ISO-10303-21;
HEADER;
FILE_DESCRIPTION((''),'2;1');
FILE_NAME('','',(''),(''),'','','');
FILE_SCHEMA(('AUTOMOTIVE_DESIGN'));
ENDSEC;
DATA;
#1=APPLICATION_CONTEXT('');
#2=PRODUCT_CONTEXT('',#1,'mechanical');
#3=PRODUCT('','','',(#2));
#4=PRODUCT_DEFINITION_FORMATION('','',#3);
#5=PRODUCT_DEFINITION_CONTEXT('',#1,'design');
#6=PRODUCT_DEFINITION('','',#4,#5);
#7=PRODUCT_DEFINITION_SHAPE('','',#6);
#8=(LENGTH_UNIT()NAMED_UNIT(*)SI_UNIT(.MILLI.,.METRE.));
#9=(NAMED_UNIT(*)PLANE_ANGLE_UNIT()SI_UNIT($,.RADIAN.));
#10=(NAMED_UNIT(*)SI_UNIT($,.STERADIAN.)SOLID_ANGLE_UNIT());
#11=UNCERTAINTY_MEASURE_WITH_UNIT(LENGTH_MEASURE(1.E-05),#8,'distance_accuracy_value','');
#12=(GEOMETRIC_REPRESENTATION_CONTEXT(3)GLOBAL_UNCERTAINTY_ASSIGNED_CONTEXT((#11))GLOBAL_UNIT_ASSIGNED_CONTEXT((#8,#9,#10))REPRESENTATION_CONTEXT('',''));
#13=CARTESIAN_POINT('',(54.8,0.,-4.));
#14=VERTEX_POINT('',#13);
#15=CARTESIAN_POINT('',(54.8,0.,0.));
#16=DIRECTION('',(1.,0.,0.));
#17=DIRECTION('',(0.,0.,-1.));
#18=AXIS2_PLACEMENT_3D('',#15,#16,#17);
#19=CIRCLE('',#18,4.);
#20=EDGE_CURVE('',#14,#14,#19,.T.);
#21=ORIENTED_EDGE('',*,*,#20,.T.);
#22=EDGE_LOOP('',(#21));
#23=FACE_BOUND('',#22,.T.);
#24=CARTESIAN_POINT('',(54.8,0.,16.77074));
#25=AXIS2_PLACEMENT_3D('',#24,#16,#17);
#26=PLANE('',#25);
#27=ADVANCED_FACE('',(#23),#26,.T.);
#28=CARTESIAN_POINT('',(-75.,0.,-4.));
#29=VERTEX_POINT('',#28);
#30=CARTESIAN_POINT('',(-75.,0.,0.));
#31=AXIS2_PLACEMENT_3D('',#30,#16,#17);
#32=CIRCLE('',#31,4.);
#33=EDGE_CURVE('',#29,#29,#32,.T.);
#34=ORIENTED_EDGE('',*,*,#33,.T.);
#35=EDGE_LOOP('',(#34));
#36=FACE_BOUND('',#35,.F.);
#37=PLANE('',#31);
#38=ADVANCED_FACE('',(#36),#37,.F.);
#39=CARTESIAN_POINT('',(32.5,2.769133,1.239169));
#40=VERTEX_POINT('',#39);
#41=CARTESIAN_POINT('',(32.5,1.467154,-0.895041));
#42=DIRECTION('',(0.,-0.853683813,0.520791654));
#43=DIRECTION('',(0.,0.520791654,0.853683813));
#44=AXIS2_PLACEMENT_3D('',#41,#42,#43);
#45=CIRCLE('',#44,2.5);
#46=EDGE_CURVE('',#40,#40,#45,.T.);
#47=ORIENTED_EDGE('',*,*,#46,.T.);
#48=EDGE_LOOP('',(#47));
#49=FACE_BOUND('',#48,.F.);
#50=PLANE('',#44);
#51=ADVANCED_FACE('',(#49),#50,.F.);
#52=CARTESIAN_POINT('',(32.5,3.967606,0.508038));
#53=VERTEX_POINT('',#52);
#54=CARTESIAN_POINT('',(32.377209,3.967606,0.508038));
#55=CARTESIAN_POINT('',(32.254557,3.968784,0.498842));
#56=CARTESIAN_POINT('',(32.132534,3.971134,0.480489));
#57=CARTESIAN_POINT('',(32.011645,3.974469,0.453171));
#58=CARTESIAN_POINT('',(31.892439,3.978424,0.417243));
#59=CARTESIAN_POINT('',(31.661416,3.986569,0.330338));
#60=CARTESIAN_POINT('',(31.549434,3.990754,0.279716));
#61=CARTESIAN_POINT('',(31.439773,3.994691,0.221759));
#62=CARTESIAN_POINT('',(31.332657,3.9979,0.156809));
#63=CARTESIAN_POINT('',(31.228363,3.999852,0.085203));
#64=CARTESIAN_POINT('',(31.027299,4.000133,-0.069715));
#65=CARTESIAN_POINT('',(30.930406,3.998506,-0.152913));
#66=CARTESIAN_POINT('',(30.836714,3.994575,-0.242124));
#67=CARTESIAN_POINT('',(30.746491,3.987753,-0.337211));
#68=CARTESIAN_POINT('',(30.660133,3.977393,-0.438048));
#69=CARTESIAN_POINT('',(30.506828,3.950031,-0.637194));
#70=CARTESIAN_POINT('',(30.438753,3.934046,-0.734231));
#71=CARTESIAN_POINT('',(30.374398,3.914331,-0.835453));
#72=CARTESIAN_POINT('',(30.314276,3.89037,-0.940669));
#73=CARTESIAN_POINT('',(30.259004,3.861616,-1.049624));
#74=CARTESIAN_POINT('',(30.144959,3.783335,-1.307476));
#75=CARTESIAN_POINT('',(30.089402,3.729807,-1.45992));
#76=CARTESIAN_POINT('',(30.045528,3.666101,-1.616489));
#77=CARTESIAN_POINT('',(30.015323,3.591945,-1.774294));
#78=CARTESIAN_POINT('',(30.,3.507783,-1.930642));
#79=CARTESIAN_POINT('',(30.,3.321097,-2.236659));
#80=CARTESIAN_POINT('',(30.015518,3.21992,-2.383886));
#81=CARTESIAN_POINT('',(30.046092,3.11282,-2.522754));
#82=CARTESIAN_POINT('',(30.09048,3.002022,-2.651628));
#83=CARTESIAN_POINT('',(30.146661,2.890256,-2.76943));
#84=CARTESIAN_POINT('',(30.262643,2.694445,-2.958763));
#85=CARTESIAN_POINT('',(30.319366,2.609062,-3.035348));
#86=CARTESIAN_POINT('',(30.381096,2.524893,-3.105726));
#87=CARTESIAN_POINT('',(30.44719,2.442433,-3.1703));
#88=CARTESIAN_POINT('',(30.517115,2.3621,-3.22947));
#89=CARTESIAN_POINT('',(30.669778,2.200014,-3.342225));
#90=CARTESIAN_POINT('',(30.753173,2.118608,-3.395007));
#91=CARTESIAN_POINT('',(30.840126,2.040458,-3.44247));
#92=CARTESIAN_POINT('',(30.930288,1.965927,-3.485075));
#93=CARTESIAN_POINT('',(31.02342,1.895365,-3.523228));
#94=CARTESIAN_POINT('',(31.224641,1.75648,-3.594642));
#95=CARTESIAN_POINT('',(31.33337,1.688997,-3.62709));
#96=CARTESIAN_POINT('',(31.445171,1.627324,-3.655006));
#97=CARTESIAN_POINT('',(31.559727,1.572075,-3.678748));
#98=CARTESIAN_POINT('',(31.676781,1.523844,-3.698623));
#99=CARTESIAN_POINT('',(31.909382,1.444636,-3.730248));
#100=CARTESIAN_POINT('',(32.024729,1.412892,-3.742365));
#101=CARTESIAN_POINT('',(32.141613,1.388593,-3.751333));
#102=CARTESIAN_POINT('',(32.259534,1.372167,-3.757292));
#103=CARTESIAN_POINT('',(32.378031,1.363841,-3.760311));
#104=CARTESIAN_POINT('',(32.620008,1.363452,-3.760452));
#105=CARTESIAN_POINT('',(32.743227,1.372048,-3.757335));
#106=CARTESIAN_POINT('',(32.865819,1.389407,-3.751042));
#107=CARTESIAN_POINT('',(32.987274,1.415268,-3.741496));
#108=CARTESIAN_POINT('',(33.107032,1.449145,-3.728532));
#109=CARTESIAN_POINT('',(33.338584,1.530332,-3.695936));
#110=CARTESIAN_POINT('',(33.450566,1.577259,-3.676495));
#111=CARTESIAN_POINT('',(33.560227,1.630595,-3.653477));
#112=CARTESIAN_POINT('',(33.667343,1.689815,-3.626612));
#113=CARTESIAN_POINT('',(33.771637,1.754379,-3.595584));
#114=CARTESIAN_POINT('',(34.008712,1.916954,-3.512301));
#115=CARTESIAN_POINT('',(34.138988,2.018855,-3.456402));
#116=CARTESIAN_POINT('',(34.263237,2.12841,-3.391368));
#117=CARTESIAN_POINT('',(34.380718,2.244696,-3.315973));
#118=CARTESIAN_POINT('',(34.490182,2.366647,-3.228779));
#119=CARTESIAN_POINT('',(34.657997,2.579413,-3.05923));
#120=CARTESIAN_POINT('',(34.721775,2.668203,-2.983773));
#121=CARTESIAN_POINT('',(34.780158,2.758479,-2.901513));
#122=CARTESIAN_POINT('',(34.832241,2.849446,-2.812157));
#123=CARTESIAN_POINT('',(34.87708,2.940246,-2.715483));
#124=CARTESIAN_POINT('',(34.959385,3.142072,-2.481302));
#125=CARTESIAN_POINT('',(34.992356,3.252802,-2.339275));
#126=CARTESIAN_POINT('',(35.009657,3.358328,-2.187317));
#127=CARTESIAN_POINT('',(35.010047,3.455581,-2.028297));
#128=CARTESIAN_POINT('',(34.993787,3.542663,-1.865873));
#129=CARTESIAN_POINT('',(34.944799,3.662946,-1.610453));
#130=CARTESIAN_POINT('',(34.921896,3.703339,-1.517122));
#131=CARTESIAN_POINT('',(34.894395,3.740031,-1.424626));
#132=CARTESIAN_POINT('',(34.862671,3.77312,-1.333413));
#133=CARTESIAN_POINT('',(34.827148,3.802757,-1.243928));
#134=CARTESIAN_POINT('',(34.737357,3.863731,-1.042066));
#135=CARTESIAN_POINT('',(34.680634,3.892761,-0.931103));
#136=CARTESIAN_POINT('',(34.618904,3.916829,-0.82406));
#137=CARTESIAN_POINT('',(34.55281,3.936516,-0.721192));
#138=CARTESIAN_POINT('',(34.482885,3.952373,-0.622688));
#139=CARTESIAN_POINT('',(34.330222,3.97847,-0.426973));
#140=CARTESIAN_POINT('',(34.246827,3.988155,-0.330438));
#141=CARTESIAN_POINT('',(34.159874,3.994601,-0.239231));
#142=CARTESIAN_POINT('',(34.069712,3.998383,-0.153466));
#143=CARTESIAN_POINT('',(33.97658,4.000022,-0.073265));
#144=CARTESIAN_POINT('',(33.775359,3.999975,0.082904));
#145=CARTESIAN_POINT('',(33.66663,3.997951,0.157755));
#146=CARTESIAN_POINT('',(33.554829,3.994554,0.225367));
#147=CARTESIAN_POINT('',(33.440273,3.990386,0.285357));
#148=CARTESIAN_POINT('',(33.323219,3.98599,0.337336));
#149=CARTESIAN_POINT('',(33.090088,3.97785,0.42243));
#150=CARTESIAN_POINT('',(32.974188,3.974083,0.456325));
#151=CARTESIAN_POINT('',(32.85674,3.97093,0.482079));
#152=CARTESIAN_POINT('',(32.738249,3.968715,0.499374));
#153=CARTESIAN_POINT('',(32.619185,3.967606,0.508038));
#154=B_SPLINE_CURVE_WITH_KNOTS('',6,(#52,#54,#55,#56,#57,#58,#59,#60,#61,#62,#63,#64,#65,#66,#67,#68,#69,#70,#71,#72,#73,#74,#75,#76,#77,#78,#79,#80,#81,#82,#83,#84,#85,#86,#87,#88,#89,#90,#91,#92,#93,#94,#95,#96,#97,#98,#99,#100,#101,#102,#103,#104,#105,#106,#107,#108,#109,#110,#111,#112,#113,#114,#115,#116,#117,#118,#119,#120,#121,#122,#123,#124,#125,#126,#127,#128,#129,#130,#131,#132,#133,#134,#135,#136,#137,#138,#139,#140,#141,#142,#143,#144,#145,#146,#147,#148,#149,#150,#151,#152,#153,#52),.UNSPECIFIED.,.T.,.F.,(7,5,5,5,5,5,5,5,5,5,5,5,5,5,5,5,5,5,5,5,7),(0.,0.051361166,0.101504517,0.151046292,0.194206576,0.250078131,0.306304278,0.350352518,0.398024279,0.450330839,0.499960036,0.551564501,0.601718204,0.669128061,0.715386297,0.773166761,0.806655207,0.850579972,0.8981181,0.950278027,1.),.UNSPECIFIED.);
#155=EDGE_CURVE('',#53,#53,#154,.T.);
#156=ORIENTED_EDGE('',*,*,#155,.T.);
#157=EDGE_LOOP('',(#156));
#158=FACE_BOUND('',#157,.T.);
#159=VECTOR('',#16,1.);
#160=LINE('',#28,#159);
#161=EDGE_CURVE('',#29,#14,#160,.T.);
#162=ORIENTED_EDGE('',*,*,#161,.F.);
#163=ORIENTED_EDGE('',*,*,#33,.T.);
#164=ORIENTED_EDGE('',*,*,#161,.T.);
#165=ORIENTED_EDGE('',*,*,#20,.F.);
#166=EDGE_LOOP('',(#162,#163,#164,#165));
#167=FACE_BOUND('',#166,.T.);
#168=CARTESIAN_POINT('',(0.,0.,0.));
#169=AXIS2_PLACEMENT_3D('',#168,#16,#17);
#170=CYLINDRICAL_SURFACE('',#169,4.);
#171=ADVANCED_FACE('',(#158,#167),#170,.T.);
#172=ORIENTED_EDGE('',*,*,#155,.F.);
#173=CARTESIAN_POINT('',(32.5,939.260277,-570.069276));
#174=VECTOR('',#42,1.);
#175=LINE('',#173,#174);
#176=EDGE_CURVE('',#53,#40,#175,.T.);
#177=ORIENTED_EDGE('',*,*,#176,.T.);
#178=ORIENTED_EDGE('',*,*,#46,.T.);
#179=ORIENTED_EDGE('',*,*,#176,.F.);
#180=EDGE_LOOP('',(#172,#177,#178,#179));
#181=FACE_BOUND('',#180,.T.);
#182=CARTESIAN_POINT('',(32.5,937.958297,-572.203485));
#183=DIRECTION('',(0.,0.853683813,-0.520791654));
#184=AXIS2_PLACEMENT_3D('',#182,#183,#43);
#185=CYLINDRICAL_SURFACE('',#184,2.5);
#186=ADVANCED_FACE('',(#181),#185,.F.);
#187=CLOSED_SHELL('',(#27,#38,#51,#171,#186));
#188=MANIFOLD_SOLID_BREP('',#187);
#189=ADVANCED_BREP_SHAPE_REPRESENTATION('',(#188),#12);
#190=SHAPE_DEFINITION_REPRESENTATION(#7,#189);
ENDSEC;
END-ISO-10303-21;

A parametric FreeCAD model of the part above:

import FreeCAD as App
import Part
import Sketcher

V = App.Vector
Q = App.Units.Quantity


def add_polygon(sketch, points):
    """Adds a closed chain of lines whose ends are joined by coincident constraints."""
    first, n = sketch.GeometryCount, len(points)
    for a, b in zip(points, points[1:] + points[:1]):
        sketch.addGeometry(Part.LineSegment(App.Vector(*a, 0), App.Vector(*b, 0)), False)
    for i in range(n):
        sketch.addConstraint(Sketcher.Constraint("Coincident", first + i, 2, first + (i + 1) % n, 1))

doc = App.newDocument("Part")
body = doc.addObject("PartDesign::Body", "Body")

# Sketch on YZ plane
sketch1 = body.newObject("Sketcher::SketchObject", "Sketch")
sketch1.AttachmentSupport = (doc.getObject("YZ_Plane"), [""])
sketch1.MapMode = "FlatFace"
sketch1.addGeometry(Part.Circle(V(0, 0, 0), V(0, 0, 1), 4), False)
sketch1.addConstraint(Sketcher.Constraint("Coincident", 0, 3, -1, 1))
sketch1.addConstraint(Sketcher.Constraint("Diameter", 0, Q("8 mm")))
pad1 = body.newObject("PartDesign::Pad", "Pad")
pad1.Profile = sketch1
pad1.Length = 150
pad1.Midplane = True

# Sketch on an angled plane
sketch2 = body.newObject("Sketcher::SketchObject", "Sketch001")
sketch2.Placement = App.Placement(V(-1373.627106, 398.034078, -1457.249478), App.Rotation(V(0, 0.520791654, 0.853683813), V(-0.999999999, 0, 0), V(0, -0.853683813, 0.520791654), "ZXY"))
sketch2.addGeometry(Part.Circle(V(1036.737465, -1406.127105, 0), V(0, 0, 1), 2.5), False)
sketch2.addConstraint(Sketcher.Constraint("Diameter", 0, Q("5 mm")))
sketch2.addConstraint(Sketcher.Constraint("DistanceX", -1, 1, 0, 3, Q("1036.737465 mm")))
sketch2.addConstraint(Sketcher.Constraint("DistanceY", 0, 3, -1, 1, Q("1406.127105 mm")))
pocket1 = body.newObject("PartDesign::Pocket", "Pocket")
pocket1.Profile = sketch2
pocket1.Length = 1097
pocket1.Reversed = True

# Sketch on XZ plane
sketch3 = body.newObject("Sketcher::SketchObject", "Sketch002")
sketch3.AttachmentSupport = (doc.getObject("XZ_Plane"), [""])
sketch3.MapMode = "FlatFace"
add_polygon(sketch3, [(54.8, -24.77074), (54.8, 16.77074), (95.2, 16.77074), (95.2, -24.77074)])  # lines 0-3
sketch3.addConstraint(Sketcher.Constraint("Vertical", 0))
sketch3.addConstraint(Sketcher.Constraint("Horizontal", 1))
sketch3.addConstraint(Sketcher.Constraint("Vertical", 2))
sketch3.addConstraint(Sketcher.Constraint("Horizontal", 3))
sketch3.addConstraint(Sketcher.Constraint("DistanceX", 1, 1, 1, 2, Q("40.4 mm")))
sketch3.addConstraint(Sketcher.Constraint("DistanceX", -1, 1, 0, 2, Q("54.8 mm")))
sketch3.addConstraint(Sketcher.Constraint("DistanceY", 0, 1, 0, 2, Q("41.54148 mm")))
sketch3.addConstraint(Sketcher.Constraint("DistanceY", -1, 1, 0, 2, Q("16.77074 mm")))
pocket2 = body.newObject("PartDesign::Pocket", "Pocket001")
pocket2.Profile = sketch3
pocket2.Length = 10
pocket2.Midplane = True

doc.recompute()
